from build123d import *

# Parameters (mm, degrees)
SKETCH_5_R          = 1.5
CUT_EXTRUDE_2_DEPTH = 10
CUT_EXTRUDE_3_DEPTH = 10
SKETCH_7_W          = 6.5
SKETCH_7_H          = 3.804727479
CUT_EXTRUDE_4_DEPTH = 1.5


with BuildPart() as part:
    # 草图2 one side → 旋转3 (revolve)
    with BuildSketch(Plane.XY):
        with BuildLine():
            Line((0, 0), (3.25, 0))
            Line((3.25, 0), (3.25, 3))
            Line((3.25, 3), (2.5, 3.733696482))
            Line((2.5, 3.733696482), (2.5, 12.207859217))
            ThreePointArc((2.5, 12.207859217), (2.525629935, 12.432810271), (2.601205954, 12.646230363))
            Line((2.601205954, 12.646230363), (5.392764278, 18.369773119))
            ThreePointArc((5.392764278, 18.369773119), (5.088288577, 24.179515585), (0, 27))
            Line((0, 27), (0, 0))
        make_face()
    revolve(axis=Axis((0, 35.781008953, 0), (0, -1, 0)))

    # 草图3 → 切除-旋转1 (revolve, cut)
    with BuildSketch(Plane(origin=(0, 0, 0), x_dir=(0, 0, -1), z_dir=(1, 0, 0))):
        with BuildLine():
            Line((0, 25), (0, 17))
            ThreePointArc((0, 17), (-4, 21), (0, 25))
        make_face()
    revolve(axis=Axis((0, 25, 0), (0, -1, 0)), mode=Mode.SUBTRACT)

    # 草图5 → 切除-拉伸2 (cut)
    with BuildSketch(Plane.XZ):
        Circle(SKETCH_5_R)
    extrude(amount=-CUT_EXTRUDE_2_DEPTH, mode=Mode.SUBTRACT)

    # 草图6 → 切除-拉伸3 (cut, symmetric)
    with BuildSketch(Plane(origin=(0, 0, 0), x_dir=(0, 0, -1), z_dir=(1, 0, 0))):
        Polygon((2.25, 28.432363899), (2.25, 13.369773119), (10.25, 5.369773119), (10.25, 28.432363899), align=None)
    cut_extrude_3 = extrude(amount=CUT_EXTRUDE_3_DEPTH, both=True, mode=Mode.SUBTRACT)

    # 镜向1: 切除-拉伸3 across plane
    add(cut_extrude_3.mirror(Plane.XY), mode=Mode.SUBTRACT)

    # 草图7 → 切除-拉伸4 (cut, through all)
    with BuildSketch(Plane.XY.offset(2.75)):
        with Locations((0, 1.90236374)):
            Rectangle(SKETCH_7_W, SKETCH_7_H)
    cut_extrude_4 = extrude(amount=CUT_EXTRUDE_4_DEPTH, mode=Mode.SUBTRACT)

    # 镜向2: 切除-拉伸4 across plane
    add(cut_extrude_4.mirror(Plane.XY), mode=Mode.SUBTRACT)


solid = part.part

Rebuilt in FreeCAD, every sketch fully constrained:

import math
import FreeCAD as App
import Part
import Sketcher
from FreeCAD import Vector
Q = App.Units.Quantity


def add_polygon(sketch, points):
    """Adds a closed chain of lines whose ends are joined by coincident constraints."""
    first, n = sketch.GeometryCount, len(points)
    for a, b in zip(points, points[1:] + points[:1]):
        sketch.addGeometry(Part.LineSegment(App.Vector(*a, 0), App.Vector(*b, 0)), False)
    for i in range(n):
        sketch.addConstraint(Sketcher.Constraint("Coincident", first + i, 2, first + (i + 1) % n, 1))

doc = App.newDocument("Part")
params = doc.addObject("Spreadsheet::Sheet", "Params")
for row, (alias, value) in enumerate([
    ("sketch1_radius", "1 mm"),
    ("sketch1_radius2", "6 mm"),
    ("sketch1_height", "3 mm"),
    ("sketch1_height2", "27 mm"),
    ("sketch1_width", "3.25 mm"),
    ("revolution_angle", "360 deg"),
    ("sketch2_radius", "4 mm"),
    ("groove_angle", "360 deg"),
    ("sketch3_diameter", "3 mm"),
    ("pocket1_length", "10 mm"),
    ("sketch4_height", "8 mm"),
    ("pocket2_length", "20 mm"),
    ("sketch5_width", "6.5 mm"),
], start=1):
    params.set(f"A{row}", alias)
    params.set(f"B{row}", "=" + value)
    params.setAlias(f"B{row}", alias)

body = doc.addObject("PartDesign::Body", "Body")

# Sketch on XY plane
sketch1 = doc.addObject("Sketcher::SketchObject", "Sketch")
body.addObject(sketch1)
sketch1.AttachmentSupport = (doc.XY_Plane, [""])
sketch1.MapMode = "FlatFace"
sketch1.addGeometry(Part.LineSegment(Vector(0, 0, 0), Vector(3.25, 0, 0)), False)
sketch1.addGeometry(Part.LineSegment(Vector(3.25, 0, 0), Vector(3.25, 3, 0)), False)
sketch1.addGeometry(Part.LineSegment(Vector(3.25, 3, 0), Vector(2.5, 3.73, 0)), False)
sketch1.addGeometry(Part.LineSegment(Vector(2.5, 3.73, 0), Vector(2.5, 12.21, 0)), False)
sketch1.addGeometry(Part.ArcOfCircle(Part.Circle(Vector(3.5, 12.21, 0), Vector(0, 0, 1), 1), math.radians(154), math.radians(180)), False)
sketch1.addGeometry(Part.LineSegment(Vector(2.6, 12.65, 0), Vector(5.39, 18.37, 0)), False)
sketch1.addGeometry(Part.ArcOfCircle(Part.Circle(Vector(0, 21, 0), Vector(0, 0, 1), 6), math.radians(-26), math.radians(90)), False)
sketch1.addGeometry(Part.LineSegment(Vector(0, 27, 0), Vector(0, 0, 0)), False)
sketch1.addConstraint(Sketcher.Constraint("Coincident", 0, 2, 1, 1))
sketch1.addConstraint(Sketcher.Constraint("Coincident", 1, 2, 2, 1))
sketch1.addConstraint(Sketcher.Constraint("Coincident", 2, 2, 3, 1))
sketch1.addConstraint(Sketcher.Constraint("Tangent", 3, 2, 4, 2))
sketch1.addConstraint(Sketcher.Constraint("Tangent", 4, 1, 5, 1))
sketch1.addConstraint(Sketcher.Constraint("Tangent", 5, 2, 6, 1))
sketch1.addConstraint(Sketcher.Constraint("Coincident", 6, 2, 7, 1))
sketch1.addConstraint(Sketcher.Constraint("Coincident", 7, 2, 0, 1))
sketch1.addConstraint(Sketcher.Constraint("Horizontal", 0))
sketch1.addConstraint(Sketcher.Constraint("Vertical", 1))
sketch1.addConstraint(Sketcher.Constraint("Vertical", 3))
sketch1.addConstraint(Sketcher.Constraint("Vertical", 7))
sketch1.addConstraint(Sketcher.Constraint("Coincident", 7, 2, -1, 1))
sketch1.addConstraint(Sketcher.Constraint("PointOnObject", 6, 3, -2))
sketch1.addConstraint(Sketcher.Constraint("Radius", 4, Q("1 mm")))
sketch1.addConstraint(Sketcher.Constraint("Radius", 6, Q("6 mm")))
sketch1.addConstraint(Sketcher.Constraint("DistanceY", 1, 1, 1, 2, Q("3 mm")))
sketch1.addConstraint(Sketcher.Constraint("DistanceY", 7, 2, 7, 1, Q("27 mm")))
sketch1.addConstraint(Sketcher.Constraint("Angle", 5, Q("64 deg")))
sketch1.addConstraint(Sketcher.Constraint("DistanceX", 0, 1, 0, 2, Q("3.25 mm")))
sketch1.addConstraint(Sketcher.Constraint("DistanceX", -1, 1, 4, 3, Q("3.5 mm")))
sketch1.addConstraint(Sketcher.Constraint("DistanceY", 3, 1, 3, 2, Q("8.474163 mm")))
sketch1.setExpression("Constraints[14]", "Params.sketch1_radius")
sketch1.setExpression("Constraints[15]", "Params.sketch1_radius2")
sketch1.setExpression("Constraints[16]", "Params.sketch1_height")
sketch1.setExpression("Constraints[17]", "Params.sketch1_height2")
sketch1.setExpression("Constraints[19]", "Params.sketch1_width")
revolution = doc.addObject("PartDesign::Revolution", "Revolution")
body.addObject(revolution)
revolution.Profile = sketch1
revolution.ReferenceAxis = (sketch1, ["V_Axis"])
revolution.setExpression("Angle", "Params.revolution_angle")

# Sketch on YZ plane
sketch2 = doc.addObject("Sketcher::SketchObject", "Sketch001")
body.addObject(sketch2)
sketch2.AttachmentSupport = (doc.YZ_Plane, [""])
sketch2.MapMode = "FlatFace"
sketch2.addGeometry(Part.LineSegment(Vector(17, 0, 0), Vector(25, 0, 0)), False)
sketch2.addGeometry(Part.ArcOfCircle(Part.Circle(Vector(21, 0, 0), Vector(0, 0, 1), 4), math.radians(0), math.radians(180)), False)
sketch2.addConstraint(Sketcher.Constraint("Coincident", 0, 1, 1, 2))
sketch2.addConstraint(Sketcher.Constraint("Coincident", 1, 1, 0, 2))
sketch2.addConstraint(Sketcher.Constraint("Horizontal", 0))
sketch2.addConstraint(Sketcher.Constraint("PointOnObject", 1, 3, -1))
sketch2.addConstraint(Sketcher.Constraint("PointOnObject", 0, 1, -1))
sketch2.addConstraint(Sketcher.Constraint("Radius", 1, Q("4 mm")))
sketch2.addConstraint(Sketcher.Constraint("DistanceX", -1, 1, 1, 3, Q("21 mm")))
sketch2.setExpression("Constraints[5]", "Params.sketch2_radius")
groove = doc.addObject("PartDesign::Groove", "Groove")
body.addObject(groove)
groove.Profile = sketch2
groove.ReferenceAxis = (sketch2, ["H_Axis"])
groove.setExpression("Angle", "Params.groove_angle")

# Sketch on XZ plane
sketch3 = doc.addObject("Sketcher::SketchObject", "Sketch002")
body.addObject(sketch3)
sketch3.AttachmentSupport = (doc.XZ_Plane, [""])
sketch3.MapMode = "FlatFace"
sketch3.addGeometry(Part.Circle(Vector(0, 0, 0), Vector(0, 0, 1), 1.5), False)
sketch3.addConstraint(Sketcher.Constraint("Coincident", 0, 3, -1, 1))
sketch3.addConstraint(Sketcher.Constraint("Diameter", 0, Q("3 mm")))
sketch3.setExpression("Constraints[1]", "Params.sketch3_diameter")
pocket1 = doc.addObject("PartDesign::Pocket", "Pocket")
body.addObject(pocket1)
pocket1.Profile = sketch3
pocket1.setExpression("Length", "Params.pocket1_length")

# Sketch on YZ plane
sketch4 = doc.addObject("Sketcher::SketchObject", "Sketch003")
body.addObject(sketch4)
sketch4.AttachmentSupport = (doc.YZ_Plane, [""])
sketch4.MapMode = "FlatFace"
add_polygon(sketch4, [(28, -2), (13, -2), (5, -10), (28, -10)])  # lines 0-3
sketch4.addConstraint(Sketcher.Constraint("Horizontal", 0))
sketch4.addConstraint(Sketcher.Constraint("Horizontal", 2))
sketch4.addConstraint(Sketcher.Constraint("Vertical", 3))
sketch4.addConstraint(Sketcher.Constraint("DistanceY", 3, 1, 3, 2, Q("8 mm")))
sketch4.addConstraint(Sketcher.Constraint("Angle", 1, Q("-135 deg")))
sketch4.addConstraint(Sketcher.Constraint("DistanceY", 0, 2, -1, 1, Q("2.25 mm")))
sketch4.addConstraint(Sketcher.Constraint("DistanceX", 0, 2, 0, 1, Q("15.062591 mm")))
sketch4.addConstraint(Sketcher.Constraint("DistanceX", -1, 1, 0, 2, Q("13.369773 mm")))
sketch4.setExpression("Constraints[7]", "Params.sketch4_height")
pocket2 = doc.addObject("PartDesign::Pocket", "Pocket001")
body.addObject(pocket2)
pocket2.Profile = sketch4
pocket2.setExpression("Length", "Params.pocket2_length")
pocket2.Midplane = True
doc.recompute()

mirrored = doc.addObject("PartDesign::Mirrored", "Mirrored")
body.addObject(mirrored)
mirrored.Originals = [pocket2]
mirrored.MirrorPlane = (doc.XY_Plane, [""])
body.Tip = mirrored

# Sketch on XY plane
sketch5 = doc.addObject("Sketcher::SketchObject", "Sketch004")
body.addObject(sketch5)
sketch5.AttachmentSupport = (doc.XY_Plane, [""])
sketch5.MapMode = "FlatFace"
sketch5.AttachmentOffset = App.Placement(Vector(0, 0, 2.75), App.Rotation())
add_polygon(sketch5, [(-3.2, 3.8), (-3.2, 0), (3.2, 0), (3.2, 3.8)])  # lines 0-3
sketch5.addConstraint(Sketcher.Constraint("Vertical", 0))
sketch5.addConstraint(Sketcher.Constraint("Horizontal", 1))
sketch5.addConstraint(Sketcher.Constraint("Vertical", 2))
sketch5.addConstraint(Sketcher.Constraint("Horizontal", 3))
sketch5.addConstraint(Sketcher.Constraint("Symmetric", 0, 2, 1, 2, -1, 1))
sketch5.addConstraint(Sketcher.Constraint("DistanceX", 1, 1, 1, 2, Q("6.5 mm")))
sketch5.addConstraint(Sketcher.Constraint("DistanceY", 0, 2, 0, 1, Q("3.804727 mm")))
sketch5.setExpression("Constraints[9]", "Params.sketch5_width")
pocket3 = doc.addObject("PartDesign::Pocket", "Pocket002")
body.addObject(pocket3)
pocket3.Profile = sketch5
pocket3.Type = "ThroughAll"
pocket3.Reversed = True
doc.recompute()

mirrored2 = doc.addObject("PartDesign::Mirrored", "Mirrored001")
body.addObject(mirrored2)
mirrored2.Originals = [pocket3]
mirrored2.MirrorPlane = (doc.XY_Plane, [""])
body.Tip = mirrored2

doc.recompute()
